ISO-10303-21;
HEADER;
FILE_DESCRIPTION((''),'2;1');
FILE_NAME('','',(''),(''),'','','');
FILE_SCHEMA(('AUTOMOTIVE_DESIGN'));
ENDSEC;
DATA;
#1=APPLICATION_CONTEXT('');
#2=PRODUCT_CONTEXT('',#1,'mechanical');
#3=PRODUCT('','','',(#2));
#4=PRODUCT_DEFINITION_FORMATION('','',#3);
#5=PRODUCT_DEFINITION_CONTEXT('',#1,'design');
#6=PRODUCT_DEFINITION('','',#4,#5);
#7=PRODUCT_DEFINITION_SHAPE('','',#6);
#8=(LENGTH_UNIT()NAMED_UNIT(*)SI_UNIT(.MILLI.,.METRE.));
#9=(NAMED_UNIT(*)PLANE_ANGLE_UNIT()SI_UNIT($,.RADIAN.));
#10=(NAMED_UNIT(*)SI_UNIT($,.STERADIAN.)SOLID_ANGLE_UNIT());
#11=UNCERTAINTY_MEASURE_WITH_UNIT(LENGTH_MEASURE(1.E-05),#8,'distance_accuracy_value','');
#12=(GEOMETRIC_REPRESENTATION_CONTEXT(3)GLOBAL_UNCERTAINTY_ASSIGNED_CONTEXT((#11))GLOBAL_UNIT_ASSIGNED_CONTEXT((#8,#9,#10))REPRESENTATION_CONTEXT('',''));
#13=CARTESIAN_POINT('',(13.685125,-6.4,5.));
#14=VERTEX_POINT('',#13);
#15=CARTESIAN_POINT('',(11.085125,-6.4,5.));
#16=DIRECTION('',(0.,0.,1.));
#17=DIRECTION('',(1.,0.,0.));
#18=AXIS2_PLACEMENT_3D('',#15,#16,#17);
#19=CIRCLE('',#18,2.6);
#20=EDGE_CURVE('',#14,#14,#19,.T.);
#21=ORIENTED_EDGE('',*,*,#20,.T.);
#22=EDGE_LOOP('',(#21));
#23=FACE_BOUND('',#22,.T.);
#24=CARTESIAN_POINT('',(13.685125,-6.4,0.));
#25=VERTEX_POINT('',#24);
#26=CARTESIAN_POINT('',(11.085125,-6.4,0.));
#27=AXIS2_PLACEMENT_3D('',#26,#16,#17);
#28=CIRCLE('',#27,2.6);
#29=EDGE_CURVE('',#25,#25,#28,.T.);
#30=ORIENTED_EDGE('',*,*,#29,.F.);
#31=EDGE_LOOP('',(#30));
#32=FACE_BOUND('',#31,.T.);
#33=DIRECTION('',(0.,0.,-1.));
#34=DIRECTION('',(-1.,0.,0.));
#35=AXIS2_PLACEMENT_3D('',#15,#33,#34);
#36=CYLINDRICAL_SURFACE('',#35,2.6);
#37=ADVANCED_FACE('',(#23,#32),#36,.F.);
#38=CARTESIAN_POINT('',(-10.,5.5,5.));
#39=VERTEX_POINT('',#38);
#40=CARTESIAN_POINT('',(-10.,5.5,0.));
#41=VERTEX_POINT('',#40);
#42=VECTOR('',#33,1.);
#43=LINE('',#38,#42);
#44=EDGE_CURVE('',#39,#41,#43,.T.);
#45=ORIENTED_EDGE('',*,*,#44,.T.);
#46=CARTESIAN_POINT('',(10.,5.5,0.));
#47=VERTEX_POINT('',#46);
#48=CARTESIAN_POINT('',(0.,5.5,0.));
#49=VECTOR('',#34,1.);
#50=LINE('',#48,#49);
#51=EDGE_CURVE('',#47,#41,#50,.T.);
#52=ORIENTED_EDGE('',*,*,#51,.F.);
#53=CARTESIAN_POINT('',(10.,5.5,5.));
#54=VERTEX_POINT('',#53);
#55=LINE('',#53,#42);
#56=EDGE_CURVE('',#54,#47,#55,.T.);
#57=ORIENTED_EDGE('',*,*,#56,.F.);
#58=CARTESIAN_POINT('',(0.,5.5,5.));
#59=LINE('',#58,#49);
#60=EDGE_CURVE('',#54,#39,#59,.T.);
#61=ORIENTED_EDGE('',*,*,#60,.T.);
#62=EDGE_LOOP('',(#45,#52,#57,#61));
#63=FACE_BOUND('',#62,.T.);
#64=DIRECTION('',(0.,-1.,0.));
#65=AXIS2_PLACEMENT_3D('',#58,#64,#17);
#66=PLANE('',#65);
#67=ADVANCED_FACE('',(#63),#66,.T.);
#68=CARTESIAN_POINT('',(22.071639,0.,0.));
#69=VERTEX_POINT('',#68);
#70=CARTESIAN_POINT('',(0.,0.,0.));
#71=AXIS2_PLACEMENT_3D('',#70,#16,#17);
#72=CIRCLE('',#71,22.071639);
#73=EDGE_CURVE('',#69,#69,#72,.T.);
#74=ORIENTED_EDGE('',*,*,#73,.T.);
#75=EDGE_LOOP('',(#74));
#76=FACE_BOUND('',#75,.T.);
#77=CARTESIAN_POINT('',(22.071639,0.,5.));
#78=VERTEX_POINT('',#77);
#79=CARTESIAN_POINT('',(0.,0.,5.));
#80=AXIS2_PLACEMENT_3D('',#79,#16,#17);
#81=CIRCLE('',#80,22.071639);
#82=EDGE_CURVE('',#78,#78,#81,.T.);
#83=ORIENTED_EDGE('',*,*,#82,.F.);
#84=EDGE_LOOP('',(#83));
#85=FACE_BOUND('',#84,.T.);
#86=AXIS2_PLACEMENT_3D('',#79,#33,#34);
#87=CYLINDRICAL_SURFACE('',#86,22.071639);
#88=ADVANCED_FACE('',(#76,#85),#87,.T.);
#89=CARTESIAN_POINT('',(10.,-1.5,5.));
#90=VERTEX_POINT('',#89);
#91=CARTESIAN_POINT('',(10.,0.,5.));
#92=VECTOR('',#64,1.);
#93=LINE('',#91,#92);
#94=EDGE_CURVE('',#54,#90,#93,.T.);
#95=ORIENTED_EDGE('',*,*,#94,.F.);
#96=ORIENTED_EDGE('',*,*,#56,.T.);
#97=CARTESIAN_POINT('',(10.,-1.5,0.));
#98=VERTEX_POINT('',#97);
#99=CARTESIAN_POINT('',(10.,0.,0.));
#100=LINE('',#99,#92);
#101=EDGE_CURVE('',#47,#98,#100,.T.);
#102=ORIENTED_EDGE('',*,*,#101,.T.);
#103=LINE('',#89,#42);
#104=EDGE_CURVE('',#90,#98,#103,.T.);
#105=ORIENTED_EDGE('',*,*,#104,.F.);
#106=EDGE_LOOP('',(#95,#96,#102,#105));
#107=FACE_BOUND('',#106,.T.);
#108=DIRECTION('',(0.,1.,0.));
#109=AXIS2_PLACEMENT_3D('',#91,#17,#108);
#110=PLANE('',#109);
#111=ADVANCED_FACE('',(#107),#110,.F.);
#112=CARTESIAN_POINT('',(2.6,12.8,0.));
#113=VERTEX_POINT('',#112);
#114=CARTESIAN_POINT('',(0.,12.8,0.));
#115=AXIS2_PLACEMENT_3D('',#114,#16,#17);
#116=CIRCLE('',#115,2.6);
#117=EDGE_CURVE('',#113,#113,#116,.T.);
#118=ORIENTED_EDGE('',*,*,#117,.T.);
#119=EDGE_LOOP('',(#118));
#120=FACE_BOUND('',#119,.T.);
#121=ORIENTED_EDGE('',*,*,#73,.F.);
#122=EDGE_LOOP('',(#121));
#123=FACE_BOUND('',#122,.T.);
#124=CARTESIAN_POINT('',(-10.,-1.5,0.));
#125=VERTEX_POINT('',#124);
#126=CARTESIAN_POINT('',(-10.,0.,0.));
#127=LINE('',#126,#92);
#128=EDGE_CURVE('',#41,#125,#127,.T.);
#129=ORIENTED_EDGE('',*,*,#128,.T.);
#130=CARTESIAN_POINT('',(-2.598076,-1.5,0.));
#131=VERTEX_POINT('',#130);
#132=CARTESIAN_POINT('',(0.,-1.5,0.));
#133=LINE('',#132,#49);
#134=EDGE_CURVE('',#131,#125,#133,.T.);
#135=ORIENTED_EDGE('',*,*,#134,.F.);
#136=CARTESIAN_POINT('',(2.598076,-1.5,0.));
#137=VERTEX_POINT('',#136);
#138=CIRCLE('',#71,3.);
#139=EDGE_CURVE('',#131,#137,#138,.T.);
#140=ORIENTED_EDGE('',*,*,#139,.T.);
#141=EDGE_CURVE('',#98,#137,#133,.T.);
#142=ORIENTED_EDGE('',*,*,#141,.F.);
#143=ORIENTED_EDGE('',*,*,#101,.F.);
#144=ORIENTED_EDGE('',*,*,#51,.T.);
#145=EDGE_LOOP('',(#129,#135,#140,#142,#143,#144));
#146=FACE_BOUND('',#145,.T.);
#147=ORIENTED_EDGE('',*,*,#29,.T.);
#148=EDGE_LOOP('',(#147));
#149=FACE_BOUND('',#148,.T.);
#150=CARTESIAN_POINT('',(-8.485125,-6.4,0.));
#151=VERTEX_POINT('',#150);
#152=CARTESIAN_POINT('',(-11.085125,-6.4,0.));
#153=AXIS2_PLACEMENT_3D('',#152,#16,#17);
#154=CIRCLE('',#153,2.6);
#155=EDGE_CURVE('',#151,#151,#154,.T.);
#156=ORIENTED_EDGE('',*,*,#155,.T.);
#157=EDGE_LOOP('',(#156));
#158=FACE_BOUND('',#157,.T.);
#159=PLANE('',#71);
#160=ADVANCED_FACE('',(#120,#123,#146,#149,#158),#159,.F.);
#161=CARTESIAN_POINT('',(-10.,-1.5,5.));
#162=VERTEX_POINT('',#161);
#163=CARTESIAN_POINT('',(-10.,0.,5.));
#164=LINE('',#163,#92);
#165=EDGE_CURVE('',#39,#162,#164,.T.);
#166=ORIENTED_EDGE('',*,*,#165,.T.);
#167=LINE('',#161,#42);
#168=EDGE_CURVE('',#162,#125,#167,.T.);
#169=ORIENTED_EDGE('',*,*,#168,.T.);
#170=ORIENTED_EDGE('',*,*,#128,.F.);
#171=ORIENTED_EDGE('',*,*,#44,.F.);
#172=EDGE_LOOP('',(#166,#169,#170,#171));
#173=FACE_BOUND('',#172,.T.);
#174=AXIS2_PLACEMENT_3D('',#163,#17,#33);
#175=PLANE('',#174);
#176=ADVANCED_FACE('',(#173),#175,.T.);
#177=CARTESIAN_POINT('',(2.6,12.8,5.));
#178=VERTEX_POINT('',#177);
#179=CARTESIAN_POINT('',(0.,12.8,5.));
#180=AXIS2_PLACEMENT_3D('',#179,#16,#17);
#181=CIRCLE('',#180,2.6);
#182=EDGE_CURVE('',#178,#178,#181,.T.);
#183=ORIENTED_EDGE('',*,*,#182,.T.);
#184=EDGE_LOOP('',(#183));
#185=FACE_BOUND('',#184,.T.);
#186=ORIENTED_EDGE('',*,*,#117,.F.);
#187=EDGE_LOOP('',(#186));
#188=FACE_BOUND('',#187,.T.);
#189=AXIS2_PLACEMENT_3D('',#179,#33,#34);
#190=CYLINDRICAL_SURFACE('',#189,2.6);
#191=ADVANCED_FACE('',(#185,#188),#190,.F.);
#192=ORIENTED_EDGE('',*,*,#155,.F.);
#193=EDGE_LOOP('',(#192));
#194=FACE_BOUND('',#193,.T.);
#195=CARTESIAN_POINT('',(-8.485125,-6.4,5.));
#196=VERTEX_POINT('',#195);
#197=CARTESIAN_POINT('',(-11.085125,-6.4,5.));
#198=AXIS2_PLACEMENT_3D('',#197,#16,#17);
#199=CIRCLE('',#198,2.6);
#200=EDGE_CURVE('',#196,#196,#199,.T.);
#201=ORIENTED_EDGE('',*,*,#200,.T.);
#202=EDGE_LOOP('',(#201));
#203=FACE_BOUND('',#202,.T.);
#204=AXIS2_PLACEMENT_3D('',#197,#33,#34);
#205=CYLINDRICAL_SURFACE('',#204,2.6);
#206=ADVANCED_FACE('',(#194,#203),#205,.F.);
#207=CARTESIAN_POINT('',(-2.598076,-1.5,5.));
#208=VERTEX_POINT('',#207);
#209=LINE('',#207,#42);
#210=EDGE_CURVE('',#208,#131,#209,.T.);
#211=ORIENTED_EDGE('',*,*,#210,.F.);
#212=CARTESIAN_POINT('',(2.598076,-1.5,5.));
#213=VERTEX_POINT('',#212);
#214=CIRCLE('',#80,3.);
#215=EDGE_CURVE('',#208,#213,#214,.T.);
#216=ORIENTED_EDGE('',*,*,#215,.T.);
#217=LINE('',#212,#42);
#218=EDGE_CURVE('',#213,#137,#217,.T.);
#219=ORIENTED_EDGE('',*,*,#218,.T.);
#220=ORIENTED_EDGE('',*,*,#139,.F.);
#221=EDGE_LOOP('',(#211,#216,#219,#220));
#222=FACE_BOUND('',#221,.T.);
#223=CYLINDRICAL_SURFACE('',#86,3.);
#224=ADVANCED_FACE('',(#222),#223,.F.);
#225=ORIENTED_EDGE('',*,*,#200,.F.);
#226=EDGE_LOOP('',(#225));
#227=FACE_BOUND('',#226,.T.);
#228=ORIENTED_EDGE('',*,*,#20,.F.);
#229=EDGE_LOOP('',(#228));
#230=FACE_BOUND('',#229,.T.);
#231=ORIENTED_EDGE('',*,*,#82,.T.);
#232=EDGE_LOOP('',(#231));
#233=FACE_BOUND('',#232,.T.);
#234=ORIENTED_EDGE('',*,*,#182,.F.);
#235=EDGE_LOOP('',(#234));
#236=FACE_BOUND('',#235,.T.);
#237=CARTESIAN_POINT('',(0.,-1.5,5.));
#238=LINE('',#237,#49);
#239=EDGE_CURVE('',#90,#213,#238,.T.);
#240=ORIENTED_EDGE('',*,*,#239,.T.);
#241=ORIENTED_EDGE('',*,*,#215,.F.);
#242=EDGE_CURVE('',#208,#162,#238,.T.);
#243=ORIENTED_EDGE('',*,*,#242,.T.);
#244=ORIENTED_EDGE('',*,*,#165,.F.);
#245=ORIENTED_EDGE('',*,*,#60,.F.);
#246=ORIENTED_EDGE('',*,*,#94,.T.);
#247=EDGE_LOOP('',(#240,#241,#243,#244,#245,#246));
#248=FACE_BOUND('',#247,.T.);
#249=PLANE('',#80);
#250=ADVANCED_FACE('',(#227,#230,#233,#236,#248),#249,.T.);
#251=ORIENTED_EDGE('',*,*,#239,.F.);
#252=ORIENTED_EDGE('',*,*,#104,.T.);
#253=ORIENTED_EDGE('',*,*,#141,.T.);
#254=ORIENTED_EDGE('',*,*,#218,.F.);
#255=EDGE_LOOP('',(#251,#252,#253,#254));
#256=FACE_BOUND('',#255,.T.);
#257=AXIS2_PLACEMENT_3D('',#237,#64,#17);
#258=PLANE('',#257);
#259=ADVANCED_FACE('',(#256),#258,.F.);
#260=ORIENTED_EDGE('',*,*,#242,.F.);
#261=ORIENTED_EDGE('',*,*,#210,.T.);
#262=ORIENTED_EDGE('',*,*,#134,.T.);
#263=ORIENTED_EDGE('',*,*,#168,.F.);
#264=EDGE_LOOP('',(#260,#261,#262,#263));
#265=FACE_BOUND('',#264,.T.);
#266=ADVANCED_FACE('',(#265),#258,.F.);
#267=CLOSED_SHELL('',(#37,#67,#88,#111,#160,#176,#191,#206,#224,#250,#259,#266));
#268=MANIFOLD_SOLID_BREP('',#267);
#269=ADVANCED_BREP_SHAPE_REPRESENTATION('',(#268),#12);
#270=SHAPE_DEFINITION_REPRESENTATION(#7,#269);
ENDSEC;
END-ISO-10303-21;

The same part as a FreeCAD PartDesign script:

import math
import FreeCAD as App
import Part
import Sketcher
from FreeCAD import Vector

doc = App.newDocument("Part")
params = doc.addObject("Spreadsheet::Sheet", "Params")
for row, (alias, value) in enumerate([
    ("sketch1_radius", "3 mm"),
    ("sketch1_diameter", "5.2 mm"),
    ("sketch1_width", "20 mm"),
    ("sketch1_height", "7 mm"),
    ("pad1_length", "5 mm"),
], start=1):
    params.set(f"A{row}", alias)
    params.set(f"B{row}", "=" + value)
    params.setAlias(f"B{row}", alias)

body = doc.addObject("PartDesign::Body", "Body")

sketch1 = doc.addObject("Sketcher::SketchObject", "Sketch")
body.addObject(sketch1)
sketch1.AttachmentSupport = (doc.XY_Plane, [""])
sketch1.MapMode = "FlatFace"
sketch1.addGeometry(Part.Circle(Vector(0, 0, 0), Vector(0, 0, 1), 22.1), False)
sketch1.addGeometry(Part.Circle(Vector(-11.1, -6.4, 0), Vector(0, 0, 1), 2.6), False)
sketch1.addGeometry(Part.Circle(Vector(11.1, -6.4, 0), Vector(0, 0, 1), 2.6), False)
sketch1.addGeometry(Part.LineSegment(Vector(-10, -1.5, 0), Vector(-10, 5.5, 0)), False)
sketch1.addGeometry(Part.LineSegment(Vector(-10, 5.5, 0), Vector(10, 5.5, 0)), False)
sketch1.addGeometry(Part.LineSegment(Vector(10, 5.5, 0), Vector(10, -1.5, 0)), False)
sketch1.addGeometry(Part.LineSegment(Vector(10, -1.5, 0), Vector(2.6, -1.5, 0)), False)
sketch1.addGeometry(Part.ArcOfCircle(Part.Circle(Vector(0, 0, 0), Vector(0, 0, 1), 3), math.radians(-150), math.radians(-30)), False)
sketch1.addGeometry(Part.LineSegment(Vector(-2.6, -1.5, 0), Vector(-10, -1.5, 0)), False)
sketch1.addGeometry(Part.Circle(Vector(0, 12.8, 0), Vector(0, 0, 1), 2.6), False)
sketch1.addConstraint(Sketcher.Constraint("Coincident", 3, 2, 4, 1))
sketch1.addConstraint(Sketcher.Constraint("Coincident", 4, 2, 5, 1))
sketch1.addConstraint(Sketcher.Constraint("Coincident", 5, 2, 6, 1))
sketch1.addConstraint(Sketcher.Constraint("Coincident", 6, 2, 7, 2))
sketch1.addConstraint(Sketcher.Constraint("Coincident", 7, 1, 8, 1))
sketch1.addConstraint(Sketcher.Constraint("Coincident", 8, 2, 3, 1))
sketch1.addConstraint(Sketcher.Constraint("Vertical", 3))
sketch1.addConstraint(Sketcher.Constraint("Horizontal", 4))
sketch1.addConstraint(Sketcher.Constraint("Vertical", 5))
sketch1.addConstraint(Sketcher.Constraint("Horizontal", 6))
sketch1.addConstraint(Sketcher.Constraint("Horizontal", 8))
sketch1.addConstraint(Sketcher.Constraint("Coincident", 0, 3, -1, 1))
sketch1.addConstraint(Sketcher.Constraint("Coincident", 7, 3, -1, 1))
sketch1.addConstraint(Sketcher.Constraint("Equal", 1, 2))
sketch1.addConstraint(Sketcher.Constraint("Equal", 2, 9))
sketch1.addConstraint(Sketcher.Constraint("Symmetric", 1, 3, 2, 3, -2))
sketch1.addConstraint(Sketcher.Constraint("Symmetric", 5, 2, 8, 2, -2))
sketch1.addConstraint(Sketcher.Constraint("PointOnObject", 9, 3, -2))
sketch1.addConstraint(Sketcher.Constraint("Radius", 7, 3.0))
sketch1.addConstraint(Sketcher.Constraint("Diameter", 1, 5.2))
sketch1.addConstraint(Sketcher.Constraint("DistanceX", 4, 1, 4, 2, 20.0))
sketch1.addConstraint(Sketcher.Constraint("DistanceY", 3, 1, 3, 2, 7.0))
sketch1.addConstraint(Sketcher.Constraint("DistanceY", 1, 3, -1, 1, 6.4))
sketch1.addConstraint(Sketcher.Constraint("DistanceY", -1, 1, 9, 3, 12.8))
sketch1.addConstraint(Sketcher.Constraint("DistanceY", -1, 1, 3, 2, 5.5))
sketch1.addConstraint(Sketcher.Constraint("Diameter", 0, 44.143278))
sketch1.addConstraint(Sketcher.Constraint("DistanceX", 1, 3, 2, 3, 22.17025))
sketch1.setExpression("Constraints[18]", "Params.sketch1_radius")
sketch1.setExpression("Constraints[19]", "Params.sketch1_diameter")
sketch1.setExpression("Constraints[20]", "Params.sketch1_width")
sketch1.setExpression("Constraints[21]", "Params.sketch1_height")
pad1 = doc.addObject("PartDesign::Pad", "Pad")
body.addObject(pad1)
pad1.Profile = sketch1
pad1.setExpression("Length", "Params.pad1_length")

doc.recompute()
